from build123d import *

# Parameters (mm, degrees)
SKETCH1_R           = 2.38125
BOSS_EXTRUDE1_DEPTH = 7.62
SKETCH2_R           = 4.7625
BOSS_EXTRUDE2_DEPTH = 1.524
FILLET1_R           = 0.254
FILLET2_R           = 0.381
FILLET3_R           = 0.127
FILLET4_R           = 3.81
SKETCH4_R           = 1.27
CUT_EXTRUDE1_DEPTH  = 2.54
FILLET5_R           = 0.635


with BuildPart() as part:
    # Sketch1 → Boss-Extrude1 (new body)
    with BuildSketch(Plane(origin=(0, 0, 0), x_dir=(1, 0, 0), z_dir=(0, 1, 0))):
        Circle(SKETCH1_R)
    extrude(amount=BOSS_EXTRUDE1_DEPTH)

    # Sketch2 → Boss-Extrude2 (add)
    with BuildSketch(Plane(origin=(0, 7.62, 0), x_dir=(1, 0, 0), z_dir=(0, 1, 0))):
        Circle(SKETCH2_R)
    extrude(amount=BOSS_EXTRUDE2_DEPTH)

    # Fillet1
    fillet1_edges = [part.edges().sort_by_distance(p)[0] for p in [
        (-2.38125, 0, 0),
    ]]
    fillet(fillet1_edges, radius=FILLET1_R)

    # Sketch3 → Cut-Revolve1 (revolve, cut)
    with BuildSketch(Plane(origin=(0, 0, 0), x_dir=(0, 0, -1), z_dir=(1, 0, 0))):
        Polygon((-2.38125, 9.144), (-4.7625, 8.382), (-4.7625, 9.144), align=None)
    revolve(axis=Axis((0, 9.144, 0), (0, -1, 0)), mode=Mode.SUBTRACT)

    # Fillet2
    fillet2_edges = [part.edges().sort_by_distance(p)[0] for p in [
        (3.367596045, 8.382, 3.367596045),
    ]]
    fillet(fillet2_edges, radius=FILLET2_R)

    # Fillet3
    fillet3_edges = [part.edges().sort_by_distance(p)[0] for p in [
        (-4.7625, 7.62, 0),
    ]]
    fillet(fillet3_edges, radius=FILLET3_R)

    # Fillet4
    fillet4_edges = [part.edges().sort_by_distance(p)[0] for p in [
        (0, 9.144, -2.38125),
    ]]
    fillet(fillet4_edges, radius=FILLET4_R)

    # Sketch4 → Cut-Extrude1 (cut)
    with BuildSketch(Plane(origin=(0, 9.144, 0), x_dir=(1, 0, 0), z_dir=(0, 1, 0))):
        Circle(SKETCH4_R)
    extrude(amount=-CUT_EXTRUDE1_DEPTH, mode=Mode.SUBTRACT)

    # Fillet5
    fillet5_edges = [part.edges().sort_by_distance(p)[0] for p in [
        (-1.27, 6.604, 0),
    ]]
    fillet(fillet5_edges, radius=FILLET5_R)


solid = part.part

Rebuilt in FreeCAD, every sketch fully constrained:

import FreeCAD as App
import Part
import Sketcher
from FreeCAD import Vector
Q = App.Units.Quantity


def edges_at(feature, points):
    """Names of the edges that pass closest to the given points."""
    edges = feature.Shape.Edges
    near = lambda p: min(range(len(edges)), key=lambda i: edges[i].distToShape(Part.Vertex(*p))[0])
    return sorted({f"Edge{near(p) + 1}" for p in points})

doc = App.newDocument("Part")
body = doc.addObject("PartDesign::Body", "Body")

sketch1 = body.newObject("Sketcher::SketchObject", "Sketch")
sketch1.AttachmentSupport = (doc.getObject("XZ_Plane"), [""])
sketch1.MapMode = "FlatFace"
sketch1.addGeometry(Part.Circle(Vector(0, 0, 0), Vector(0, 0, 1), 2.38125), False)
sketch1.addConstraint(Sketcher.Constraint("Coincident", 0, 3, -1, 1))
sketch1.addConstraint(Sketcher.Constraint("Diameter", 0, Q("0.1875 in")))
pad1 = body.newObject("PartDesign::Pad", "Pad")
pad1.Profile = sketch1
pad1.Length = Q("0.3 in")
pad1.Reversed = True

sketch2 = body.newObject("Sketcher::SketchObject", "Sketch001")
sketch2.AttachmentSupport = (doc.getObject("XZ_Plane"), [""])
sketch2.MapMode = "FlatFace"
sketch2.AttachmentOffset = App.Placement(Vector(0, 0, -0.3 * 25.4), App.Rotation())
sketch2.addGeometry(Part.Circle(Vector(0, 0, 0), Vector(0, 0, 1), 4.7625), False)
sketch2.addConstraint(Sketcher.Constraint("Coincident", 0, 3, -1, 1))
sketch2.addConstraint(Sketcher.Constraint("Diameter", 0, Q("0.375 in")))
pad2 = body.newObject("PartDesign::Pad", "Pad001")
pad2.Profile = sketch2
pad2.Length = Q("0.06 in")
pad2.Reversed = True
doc.recompute()

fillet = body.newObject("PartDesign::Fillet", "Fillet")
fillet.Base = (pad2, edges_at(pad2, [(-2.381, 0, 0)]))
fillet.Radius = Q("0.01 in")

sketch3 = body.newObject("Sketcher::SketchObject", "Sketch002")
sketch3.AttachmentSupport = (doc.getObject("YZ_Plane"), [""])
sketch3.MapMode = "FlatFace"
sketch3.addGeometry(Part.LineSegment(Vector(8.382, 4.7625, 0), Vector(9.144, 2.38125, 0)), False)
sketch3.addGeometry(Part.LineSegment(Vector(9.144, 2.38125, 0), Vector(9.144, 4.7625, 0)), False)
sketch3.addGeometry(Part.LineSegment(Vector(9.144, 4.7625, 0), Vector(8.382, 4.7625, 0)), False)
sketch3.addConstraint(Sketcher.Constraint("Coincident", 0, 2, 1, 1))
sketch3.addConstraint(Sketcher.Constraint("Coincident", 1, 2, 2, 1))
sketch3.addConstraint(Sketcher.Constraint("Coincident", 2, 2, 0, 1))
sketch3.addConstraint(Sketcher.Constraint("Vertical", 1))
sketch3.addConstraint(Sketcher.Constraint("Horizontal", 2))
sketch3.addConstraint(Sketcher.Constraint("DistanceX", 2, 2, 2, 1, Q("0.03 in")))
sketch3.addConstraint(Sketcher.Constraint("DistanceY", 1, 1, 1, 2, Q("0.09375 in")))
sketch3.addConstraint(Sketcher.Constraint("DistanceX", -1, 1, 0, 2, Q("0.36 in")))
sketch3.addConstraint(Sketcher.Constraint("DistanceY", -1, 1, 0, 2, Q("0.09375 in")))
groove = body.newObject("PartDesign::Groove", "Groove")
groove.Profile = sketch3
groove.ReferenceAxis = (sketch3, ["H_Axis"])
groove.Angle = 360
doc.recompute()

fillet2 = body.newObject("PartDesign::Fillet", "Fillet001")
fillet2.Base = (groove, edges_at(groove, [(3.368, 8.382, 3.368)]))
fillet2.Radius = Q("0.015 in")
doc.recompute()

fillet3 = body.newObject("PartDesign::Fillet", "Fillet002")
fillet3.Base = (fillet2, edges_at(fillet2, [(-4.763, 7.62, 0)]))
fillet3.Radius = Q("0.005 in")
doc.recompute()

fillet4 = body.newObject("PartDesign::Fillet", "Fillet003")
fillet4.Base = (fillet3, edges_at(fillet3, [(0, 9.144, -2.381)]))
fillet4.Radius = Q("0.15 in")

sketch4 = body.newObject("Sketcher::SketchObject", "Sketch003")
sketch4.AttachmentSupport = (doc.getObject("XZ_Plane"), [""])
sketch4.MapMode = "FlatFace"
sketch4.AttachmentOffset = App.Placement(Vector(0, 0, -0.36 * 25.4), App.Rotation())
sketch4.addGeometry(Part.Circle(Vector(0, 0, 0), Vector(0, 0, 1), 1.27), False)
sketch4.addConstraint(Sketcher.Constraint("Coincident", 0, 3, -1, 1))
sketch4.addConstraint(Sketcher.Constraint("Diameter", 0, Q("0.1 in")))
pocket1 = body.newObject("PartDesign::Pocket", "Pocket")
pocket1.Profile = sketch4
pocket1.Length = Q("0.1 in")
pocket1.Reversed = True
doc.recompute()

fillet5 = body.newObject("PartDesign::Fillet", "Fillet004")
fillet5.Base = (pocket1, edges_at(pocket1, [(-1.27, 6.604, 0)]))
fillet5.Radius = Q("0.025 in")

doc.recompute()
